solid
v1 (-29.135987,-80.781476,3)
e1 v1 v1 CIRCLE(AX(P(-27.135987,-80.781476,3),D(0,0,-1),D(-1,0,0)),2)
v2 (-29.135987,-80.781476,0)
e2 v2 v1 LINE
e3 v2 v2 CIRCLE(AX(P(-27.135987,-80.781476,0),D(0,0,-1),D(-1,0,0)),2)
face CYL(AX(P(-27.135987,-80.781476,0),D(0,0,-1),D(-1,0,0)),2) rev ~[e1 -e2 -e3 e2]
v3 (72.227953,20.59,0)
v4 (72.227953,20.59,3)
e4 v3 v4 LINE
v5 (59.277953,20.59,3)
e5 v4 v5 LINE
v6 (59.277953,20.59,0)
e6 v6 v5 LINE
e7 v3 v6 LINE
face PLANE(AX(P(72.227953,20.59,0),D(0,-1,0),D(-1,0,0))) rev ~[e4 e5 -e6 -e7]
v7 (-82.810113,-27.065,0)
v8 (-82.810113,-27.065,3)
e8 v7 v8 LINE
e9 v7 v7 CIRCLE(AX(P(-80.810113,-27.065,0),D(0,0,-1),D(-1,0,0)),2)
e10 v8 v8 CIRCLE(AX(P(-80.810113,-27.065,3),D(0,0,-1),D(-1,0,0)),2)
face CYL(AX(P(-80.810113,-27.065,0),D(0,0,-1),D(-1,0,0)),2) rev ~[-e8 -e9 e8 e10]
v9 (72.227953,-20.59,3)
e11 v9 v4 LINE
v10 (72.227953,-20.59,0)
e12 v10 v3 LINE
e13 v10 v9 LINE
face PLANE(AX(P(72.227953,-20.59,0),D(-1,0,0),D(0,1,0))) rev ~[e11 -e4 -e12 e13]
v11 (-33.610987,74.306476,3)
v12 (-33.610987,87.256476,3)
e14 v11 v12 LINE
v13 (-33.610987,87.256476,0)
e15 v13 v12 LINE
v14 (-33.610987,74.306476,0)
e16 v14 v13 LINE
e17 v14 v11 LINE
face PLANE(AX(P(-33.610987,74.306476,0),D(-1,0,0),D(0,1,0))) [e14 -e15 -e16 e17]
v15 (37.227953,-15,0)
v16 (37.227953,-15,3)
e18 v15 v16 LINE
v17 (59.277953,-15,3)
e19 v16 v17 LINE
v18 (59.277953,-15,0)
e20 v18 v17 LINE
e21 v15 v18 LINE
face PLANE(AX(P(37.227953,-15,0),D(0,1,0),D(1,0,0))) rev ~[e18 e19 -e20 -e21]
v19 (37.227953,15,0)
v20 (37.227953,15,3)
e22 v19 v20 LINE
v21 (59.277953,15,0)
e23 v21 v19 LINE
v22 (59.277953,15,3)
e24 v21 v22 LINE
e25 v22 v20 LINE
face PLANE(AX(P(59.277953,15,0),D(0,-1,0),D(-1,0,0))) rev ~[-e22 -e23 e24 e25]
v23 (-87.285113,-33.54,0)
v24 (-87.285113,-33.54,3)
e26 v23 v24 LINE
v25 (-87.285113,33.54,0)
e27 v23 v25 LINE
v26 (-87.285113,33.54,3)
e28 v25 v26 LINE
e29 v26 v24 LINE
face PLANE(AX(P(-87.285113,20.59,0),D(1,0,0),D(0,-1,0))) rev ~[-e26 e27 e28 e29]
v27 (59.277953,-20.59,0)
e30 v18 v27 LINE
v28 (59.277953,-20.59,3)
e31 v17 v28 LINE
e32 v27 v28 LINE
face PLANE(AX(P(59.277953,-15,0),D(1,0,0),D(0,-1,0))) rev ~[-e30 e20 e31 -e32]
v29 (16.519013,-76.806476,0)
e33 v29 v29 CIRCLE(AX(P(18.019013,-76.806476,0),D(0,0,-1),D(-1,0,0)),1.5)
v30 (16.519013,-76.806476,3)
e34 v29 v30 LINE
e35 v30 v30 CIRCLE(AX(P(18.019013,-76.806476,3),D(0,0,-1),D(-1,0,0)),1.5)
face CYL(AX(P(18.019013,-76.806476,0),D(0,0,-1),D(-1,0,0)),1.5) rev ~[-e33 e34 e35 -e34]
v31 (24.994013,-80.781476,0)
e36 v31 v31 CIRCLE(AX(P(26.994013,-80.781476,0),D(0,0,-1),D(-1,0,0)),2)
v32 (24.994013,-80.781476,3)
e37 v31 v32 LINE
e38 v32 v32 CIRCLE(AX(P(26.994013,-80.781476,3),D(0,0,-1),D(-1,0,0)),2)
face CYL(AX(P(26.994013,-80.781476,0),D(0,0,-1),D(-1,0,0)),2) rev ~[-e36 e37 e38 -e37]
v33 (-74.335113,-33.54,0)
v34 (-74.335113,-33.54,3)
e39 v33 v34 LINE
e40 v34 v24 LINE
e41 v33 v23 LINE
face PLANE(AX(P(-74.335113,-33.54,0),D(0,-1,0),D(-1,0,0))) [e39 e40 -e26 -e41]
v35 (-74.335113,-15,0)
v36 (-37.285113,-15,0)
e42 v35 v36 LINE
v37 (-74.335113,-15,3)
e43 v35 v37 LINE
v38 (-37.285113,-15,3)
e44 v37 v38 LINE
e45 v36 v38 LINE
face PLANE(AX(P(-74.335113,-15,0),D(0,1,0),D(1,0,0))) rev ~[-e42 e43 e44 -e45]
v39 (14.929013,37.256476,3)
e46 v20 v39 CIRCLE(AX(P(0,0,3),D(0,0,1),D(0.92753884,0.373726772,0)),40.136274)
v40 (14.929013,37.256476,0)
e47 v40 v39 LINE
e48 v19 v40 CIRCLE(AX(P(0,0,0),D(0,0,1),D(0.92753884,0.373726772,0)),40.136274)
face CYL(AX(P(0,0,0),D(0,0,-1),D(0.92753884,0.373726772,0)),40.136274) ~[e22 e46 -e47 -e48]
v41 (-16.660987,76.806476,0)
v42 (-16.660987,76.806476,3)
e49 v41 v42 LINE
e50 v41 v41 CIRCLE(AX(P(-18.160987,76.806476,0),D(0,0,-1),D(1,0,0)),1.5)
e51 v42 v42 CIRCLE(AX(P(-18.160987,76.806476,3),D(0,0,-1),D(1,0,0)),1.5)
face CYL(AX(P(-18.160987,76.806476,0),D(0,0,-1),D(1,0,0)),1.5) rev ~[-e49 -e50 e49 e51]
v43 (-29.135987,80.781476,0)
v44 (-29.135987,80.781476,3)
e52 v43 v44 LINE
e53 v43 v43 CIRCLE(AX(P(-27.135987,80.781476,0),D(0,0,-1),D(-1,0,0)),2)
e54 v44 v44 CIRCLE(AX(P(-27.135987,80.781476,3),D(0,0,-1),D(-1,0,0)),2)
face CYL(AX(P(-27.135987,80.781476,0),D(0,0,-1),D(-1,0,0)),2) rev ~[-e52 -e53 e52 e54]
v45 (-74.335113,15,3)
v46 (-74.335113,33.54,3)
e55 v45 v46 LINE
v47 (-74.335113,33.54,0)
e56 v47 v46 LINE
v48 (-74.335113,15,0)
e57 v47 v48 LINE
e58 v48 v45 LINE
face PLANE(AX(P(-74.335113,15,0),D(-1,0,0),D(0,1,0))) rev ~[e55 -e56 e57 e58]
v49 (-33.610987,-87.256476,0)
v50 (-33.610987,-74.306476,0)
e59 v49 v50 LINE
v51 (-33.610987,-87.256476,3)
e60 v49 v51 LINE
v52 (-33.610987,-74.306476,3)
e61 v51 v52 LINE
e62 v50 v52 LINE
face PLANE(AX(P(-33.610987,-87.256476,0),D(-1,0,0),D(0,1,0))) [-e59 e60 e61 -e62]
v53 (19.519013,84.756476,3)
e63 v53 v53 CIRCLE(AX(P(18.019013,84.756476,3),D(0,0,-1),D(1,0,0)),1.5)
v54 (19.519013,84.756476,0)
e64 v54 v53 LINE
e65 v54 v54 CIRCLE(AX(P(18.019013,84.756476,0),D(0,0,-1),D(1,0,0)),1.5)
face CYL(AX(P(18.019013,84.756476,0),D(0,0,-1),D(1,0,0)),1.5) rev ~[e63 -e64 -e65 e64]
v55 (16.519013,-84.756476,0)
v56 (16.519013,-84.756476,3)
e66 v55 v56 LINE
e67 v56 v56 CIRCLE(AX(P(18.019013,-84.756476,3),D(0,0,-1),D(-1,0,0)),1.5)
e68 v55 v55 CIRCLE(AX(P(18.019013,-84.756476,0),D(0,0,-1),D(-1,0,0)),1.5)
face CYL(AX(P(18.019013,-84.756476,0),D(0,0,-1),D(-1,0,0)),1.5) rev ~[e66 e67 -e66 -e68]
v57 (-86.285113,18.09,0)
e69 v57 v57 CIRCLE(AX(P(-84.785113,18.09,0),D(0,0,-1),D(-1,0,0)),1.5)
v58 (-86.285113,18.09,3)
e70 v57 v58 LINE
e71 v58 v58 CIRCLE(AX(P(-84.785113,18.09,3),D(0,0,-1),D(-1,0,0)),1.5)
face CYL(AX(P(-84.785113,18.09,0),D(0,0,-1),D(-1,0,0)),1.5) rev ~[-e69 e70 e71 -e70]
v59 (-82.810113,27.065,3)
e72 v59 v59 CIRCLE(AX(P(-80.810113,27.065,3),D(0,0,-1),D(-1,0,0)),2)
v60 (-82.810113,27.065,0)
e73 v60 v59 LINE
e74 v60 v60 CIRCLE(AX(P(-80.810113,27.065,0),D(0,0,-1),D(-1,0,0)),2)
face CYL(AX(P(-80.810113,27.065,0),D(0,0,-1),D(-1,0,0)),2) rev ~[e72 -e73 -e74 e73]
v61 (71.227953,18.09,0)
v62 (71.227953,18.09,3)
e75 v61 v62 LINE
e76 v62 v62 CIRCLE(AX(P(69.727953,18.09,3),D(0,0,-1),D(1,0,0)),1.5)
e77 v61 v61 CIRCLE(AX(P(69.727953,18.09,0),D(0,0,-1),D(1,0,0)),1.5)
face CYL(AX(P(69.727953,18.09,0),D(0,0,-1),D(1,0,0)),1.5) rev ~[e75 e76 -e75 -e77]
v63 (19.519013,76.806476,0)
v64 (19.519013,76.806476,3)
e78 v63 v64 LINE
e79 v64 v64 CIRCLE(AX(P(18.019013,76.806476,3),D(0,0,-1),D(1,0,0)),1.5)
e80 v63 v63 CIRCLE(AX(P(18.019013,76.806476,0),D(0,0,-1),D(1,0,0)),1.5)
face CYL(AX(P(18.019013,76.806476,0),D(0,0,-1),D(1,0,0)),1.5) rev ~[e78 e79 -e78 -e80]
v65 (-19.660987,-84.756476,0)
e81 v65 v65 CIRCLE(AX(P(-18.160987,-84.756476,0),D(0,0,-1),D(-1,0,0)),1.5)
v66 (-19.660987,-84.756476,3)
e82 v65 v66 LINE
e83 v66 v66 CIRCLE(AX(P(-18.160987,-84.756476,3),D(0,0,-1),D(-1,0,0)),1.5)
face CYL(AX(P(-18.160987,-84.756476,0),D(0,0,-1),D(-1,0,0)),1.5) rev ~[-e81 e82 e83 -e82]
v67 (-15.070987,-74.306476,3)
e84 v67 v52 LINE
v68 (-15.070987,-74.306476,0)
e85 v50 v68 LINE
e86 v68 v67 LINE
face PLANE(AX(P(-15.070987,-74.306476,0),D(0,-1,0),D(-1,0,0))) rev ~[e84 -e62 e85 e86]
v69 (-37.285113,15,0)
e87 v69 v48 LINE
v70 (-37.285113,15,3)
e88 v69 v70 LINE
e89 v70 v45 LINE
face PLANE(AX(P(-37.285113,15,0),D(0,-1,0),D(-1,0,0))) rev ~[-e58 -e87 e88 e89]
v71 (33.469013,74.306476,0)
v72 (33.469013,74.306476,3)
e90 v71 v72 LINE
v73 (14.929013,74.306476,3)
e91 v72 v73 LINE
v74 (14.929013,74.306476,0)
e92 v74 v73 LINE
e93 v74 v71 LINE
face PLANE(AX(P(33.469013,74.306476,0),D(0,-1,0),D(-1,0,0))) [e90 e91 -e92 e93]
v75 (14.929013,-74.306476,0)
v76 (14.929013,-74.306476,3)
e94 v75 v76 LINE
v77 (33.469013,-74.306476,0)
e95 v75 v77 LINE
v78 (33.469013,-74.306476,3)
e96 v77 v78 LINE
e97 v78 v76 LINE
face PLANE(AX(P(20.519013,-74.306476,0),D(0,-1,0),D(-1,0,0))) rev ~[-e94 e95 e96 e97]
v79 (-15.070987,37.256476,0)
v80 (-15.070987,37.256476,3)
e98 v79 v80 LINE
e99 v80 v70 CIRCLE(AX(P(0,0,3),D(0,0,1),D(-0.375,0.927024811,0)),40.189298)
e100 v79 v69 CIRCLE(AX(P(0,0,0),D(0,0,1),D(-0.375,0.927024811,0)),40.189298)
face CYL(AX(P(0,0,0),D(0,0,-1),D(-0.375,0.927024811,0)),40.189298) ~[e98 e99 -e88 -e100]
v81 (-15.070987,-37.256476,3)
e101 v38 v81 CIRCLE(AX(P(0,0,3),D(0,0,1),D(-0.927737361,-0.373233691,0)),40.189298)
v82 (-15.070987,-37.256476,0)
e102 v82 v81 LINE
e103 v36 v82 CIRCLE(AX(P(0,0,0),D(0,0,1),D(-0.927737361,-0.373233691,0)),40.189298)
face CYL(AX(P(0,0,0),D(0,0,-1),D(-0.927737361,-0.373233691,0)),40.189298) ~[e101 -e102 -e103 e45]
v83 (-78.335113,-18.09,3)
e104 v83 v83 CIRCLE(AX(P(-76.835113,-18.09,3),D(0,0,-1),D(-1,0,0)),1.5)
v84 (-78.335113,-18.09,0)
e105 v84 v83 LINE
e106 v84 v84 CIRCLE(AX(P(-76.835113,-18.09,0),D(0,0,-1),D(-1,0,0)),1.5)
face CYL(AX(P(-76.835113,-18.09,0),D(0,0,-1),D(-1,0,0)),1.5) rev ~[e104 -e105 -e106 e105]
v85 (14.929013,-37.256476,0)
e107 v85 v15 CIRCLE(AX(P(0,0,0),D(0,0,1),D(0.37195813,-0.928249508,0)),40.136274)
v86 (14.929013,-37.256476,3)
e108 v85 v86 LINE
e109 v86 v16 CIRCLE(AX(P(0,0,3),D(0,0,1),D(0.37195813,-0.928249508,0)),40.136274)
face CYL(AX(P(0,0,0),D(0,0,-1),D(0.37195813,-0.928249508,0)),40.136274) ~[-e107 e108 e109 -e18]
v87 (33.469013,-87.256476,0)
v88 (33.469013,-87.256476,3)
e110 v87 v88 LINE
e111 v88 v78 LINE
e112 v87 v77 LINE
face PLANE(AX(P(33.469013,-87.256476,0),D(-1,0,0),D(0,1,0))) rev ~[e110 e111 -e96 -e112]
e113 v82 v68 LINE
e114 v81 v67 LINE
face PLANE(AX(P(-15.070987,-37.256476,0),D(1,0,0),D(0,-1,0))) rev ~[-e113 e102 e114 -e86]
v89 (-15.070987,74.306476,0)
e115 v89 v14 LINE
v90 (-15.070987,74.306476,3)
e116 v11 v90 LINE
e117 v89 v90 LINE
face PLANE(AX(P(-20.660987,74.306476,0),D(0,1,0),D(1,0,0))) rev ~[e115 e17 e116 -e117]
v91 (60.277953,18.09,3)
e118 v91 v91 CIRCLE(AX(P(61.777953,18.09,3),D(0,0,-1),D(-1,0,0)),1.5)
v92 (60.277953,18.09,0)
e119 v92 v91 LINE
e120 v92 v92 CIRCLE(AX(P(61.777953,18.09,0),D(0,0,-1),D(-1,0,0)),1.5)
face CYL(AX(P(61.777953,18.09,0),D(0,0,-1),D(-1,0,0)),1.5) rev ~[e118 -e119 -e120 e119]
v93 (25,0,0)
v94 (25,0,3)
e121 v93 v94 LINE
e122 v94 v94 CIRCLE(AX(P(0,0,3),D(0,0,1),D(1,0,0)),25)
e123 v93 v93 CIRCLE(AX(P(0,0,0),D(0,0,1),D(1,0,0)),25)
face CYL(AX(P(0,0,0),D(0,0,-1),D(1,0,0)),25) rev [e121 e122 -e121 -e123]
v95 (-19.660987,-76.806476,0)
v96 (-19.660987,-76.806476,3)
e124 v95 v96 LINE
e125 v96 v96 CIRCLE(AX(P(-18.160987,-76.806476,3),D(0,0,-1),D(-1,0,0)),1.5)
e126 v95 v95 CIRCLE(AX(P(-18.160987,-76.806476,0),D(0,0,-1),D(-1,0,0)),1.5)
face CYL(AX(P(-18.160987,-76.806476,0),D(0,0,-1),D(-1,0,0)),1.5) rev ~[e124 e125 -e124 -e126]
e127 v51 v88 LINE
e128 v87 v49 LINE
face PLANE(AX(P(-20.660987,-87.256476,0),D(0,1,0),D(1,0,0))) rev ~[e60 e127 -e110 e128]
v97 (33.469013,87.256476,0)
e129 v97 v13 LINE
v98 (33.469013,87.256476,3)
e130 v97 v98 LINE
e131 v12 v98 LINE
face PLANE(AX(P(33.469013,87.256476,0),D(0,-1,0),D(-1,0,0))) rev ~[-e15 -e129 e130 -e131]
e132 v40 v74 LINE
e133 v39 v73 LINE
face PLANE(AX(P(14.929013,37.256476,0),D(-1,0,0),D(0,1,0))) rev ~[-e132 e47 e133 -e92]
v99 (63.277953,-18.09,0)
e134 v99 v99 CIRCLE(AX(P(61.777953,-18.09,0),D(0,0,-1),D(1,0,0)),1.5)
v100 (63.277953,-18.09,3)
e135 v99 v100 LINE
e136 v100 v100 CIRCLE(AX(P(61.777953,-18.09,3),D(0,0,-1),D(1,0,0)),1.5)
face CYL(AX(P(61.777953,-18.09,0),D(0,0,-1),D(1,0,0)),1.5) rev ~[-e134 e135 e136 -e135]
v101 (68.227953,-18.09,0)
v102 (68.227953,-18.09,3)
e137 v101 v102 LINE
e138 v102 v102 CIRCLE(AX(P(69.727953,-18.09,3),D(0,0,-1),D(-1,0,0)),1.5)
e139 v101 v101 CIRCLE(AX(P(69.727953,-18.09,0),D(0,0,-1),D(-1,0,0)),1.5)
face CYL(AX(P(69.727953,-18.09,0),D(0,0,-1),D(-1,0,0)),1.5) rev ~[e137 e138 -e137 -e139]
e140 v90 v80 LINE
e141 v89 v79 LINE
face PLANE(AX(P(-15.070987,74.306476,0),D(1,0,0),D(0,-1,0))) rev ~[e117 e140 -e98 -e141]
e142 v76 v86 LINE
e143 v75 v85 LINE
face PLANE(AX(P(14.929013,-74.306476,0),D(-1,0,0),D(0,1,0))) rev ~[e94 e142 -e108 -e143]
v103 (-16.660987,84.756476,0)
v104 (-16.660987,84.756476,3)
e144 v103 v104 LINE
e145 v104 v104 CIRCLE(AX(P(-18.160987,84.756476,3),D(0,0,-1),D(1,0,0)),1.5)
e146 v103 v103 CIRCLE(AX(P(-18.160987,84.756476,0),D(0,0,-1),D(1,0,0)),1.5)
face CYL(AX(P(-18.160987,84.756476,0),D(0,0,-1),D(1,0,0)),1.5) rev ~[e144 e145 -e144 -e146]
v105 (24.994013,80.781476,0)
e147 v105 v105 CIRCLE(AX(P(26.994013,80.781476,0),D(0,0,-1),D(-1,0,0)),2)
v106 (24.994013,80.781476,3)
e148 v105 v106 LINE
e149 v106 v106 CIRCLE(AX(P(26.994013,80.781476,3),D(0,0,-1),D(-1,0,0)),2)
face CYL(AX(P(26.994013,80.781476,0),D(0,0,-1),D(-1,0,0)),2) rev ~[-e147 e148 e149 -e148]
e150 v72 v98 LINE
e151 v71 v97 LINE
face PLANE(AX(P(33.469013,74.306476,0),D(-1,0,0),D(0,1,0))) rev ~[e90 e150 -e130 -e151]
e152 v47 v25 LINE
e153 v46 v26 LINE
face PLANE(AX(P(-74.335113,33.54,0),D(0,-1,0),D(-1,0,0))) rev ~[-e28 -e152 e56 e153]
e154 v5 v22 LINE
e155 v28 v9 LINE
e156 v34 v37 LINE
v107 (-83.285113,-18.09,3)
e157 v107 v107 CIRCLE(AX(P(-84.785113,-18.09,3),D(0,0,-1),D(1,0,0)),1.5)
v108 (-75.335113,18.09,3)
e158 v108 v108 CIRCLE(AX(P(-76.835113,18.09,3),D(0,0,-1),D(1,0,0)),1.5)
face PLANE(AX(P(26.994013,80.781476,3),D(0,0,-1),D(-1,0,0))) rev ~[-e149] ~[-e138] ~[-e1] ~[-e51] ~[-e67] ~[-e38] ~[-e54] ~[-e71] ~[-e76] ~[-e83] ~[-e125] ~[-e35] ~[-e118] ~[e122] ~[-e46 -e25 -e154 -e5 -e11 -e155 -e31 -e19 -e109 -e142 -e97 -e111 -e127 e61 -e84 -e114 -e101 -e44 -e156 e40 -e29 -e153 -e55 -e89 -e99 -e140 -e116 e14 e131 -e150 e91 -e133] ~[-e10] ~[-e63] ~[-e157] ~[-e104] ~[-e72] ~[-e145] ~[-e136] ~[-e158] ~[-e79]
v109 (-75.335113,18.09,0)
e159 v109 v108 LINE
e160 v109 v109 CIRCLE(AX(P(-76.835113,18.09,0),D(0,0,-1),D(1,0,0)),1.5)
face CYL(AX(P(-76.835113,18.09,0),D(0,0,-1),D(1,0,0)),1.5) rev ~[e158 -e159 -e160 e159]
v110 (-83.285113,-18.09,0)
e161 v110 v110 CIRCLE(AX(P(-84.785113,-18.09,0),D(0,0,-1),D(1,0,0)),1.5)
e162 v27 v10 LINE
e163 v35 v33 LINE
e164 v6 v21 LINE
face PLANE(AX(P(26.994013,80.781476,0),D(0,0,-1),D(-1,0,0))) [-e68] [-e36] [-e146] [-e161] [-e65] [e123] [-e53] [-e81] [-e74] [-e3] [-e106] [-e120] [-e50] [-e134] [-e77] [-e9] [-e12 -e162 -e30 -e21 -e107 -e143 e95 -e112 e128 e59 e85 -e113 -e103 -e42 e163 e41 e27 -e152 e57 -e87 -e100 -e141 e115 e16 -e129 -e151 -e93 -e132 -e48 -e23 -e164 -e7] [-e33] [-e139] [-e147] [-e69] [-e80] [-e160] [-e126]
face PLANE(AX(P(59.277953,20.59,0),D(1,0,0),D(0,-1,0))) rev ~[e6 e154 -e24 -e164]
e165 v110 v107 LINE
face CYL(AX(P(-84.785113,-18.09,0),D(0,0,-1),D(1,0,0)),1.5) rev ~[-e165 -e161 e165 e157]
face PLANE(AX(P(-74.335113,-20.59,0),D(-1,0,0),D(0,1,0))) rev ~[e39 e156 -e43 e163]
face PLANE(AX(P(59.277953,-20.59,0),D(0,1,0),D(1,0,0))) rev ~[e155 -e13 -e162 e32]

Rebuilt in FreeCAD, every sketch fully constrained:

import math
import FreeCAD as App
import Part
import Sketcher

V = App.Vector

doc = App.newDocument("Part")
body = doc.addObject("PartDesign::Body", "Body")

sketch1 = doc.addObject("Sketcher::SketchObject", "Sketch")
body.addObject(sketch1)
sketch1.AttachmentSupport = (doc.XY_Plane, [""])
sketch1.MapMode = "FlatFace"
sketch1.addGeometry(Part.LineSegment(V(-15, 74, 0), V(-15, 37, 0)), False)
sketch1.addGeometry(Part.ArcOfCircle(Part.Circle(V(0, 0, 0), V(0, 0, 1), 40), math.radians(112), math.radians(158)), False)
sketch1.addGeometry(Part.LineSegment(V(-37, 15, 0), V(-74, 15, 0)), False)
sketch1.addGeometry(Part.LineSegment(V(-74, 15, 0), V(-74, 21, 0)), False)
sketch1.addGeometry(Part.LineSegment(V(-74, 21, 0), V(-87, 21, 0)), False)
sketch1.addGeometry(Part.LineSegment(V(-87, 21, 0), V(-87, -21, 0)), False)
sketch1.addGeometry(Part.LineSegment(V(-87, -21, 0), V(-74, -21, 0)), False)
sketch1.addGeometry(Part.LineSegment(V(-74, -21, 0), V(-74, -15, 0)), False)
sketch1.addGeometry(Part.LineSegment(V(-74, -15, 0), V(-37, -15, 0)), False)
sketch1.addGeometry(Part.ArcOfCircle(Part.Circle(V(0, 0, 0), V(0, 0, 1), 40), math.radians(-158), math.radians(-112)), False)
sketch1.addGeometry(Part.LineSegment(V(-15, -37, 0), V(-15, -74, 0)), False)
sketch1.addGeometry(Part.LineSegment(V(-15, -74, 0), V(-21, -74, 0)), False)
sketch1.addGeometry(Part.LineSegment(V(-21, -74, 0), V(-21, -87, 0)), False)
sketch1.addGeometry(Part.LineSegment(V(-21, -87, 0), V(21, -87, 0)), False)
sketch1.addGeometry(Part.LineSegment(V(21, -87, 0), V(21, -74, 0)), False)
sketch1.addGeometry(Part.LineSegment(V(21, -74, 0), V(15, -74, 0)), False)
sketch1.addGeometry(Part.LineSegment(V(15, -74, 0), V(15, -37, 0)), False)
sketch1.addGeometry(Part.ArcOfCircle(Part.Circle(V(0, 0, 0), V(0, 0, 1), 40), math.radians(-68), math.radians(-22)), False)
sketch1.addGeometry(Part.LineSegment(V(37, -15, 0), V(59, -15, 0)), False)
sketch1.addGeometry(Part.LineSegment(V(59, -15, 0), V(59, -21, 0)), False)
sketch1.addGeometry(Part.LineSegment(V(59, -21, 0), V(72, -21, 0)), False)
sketch1.addGeometry(Part.LineSegment(V(72, -21, 0), V(72, 21, 0)), False)
sketch1.addGeometry(Part.LineSegment(V(72, 21, 0), V(59, 21, 0)), False)
sketch1.addGeometry(Part.LineSegment(V(59, 21, 0), V(59, 15, 0)), False)
sketch1.addGeometry(Part.LineSegment(V(59, 15, 0), V(37, 15, 0)), False)
sketch1.addGeometry(Part.ArcOfCircle(Part.Circle(V(0, 0, 0), V(0, 0, 1), 40), math.radians(22), math.radians(68)), False)
sketch1.addGeometry(Part.LineSegment(V(15, 37, 0), V(15, 74, 0)), False)
sketch1.addGeometry(Part.LineSegment(V(15, 74, 0), V(21, 74, 0)), False)
sketch1.addGeometry(Part.LineSegment(V(21, 74, 0), V(21, 87, 0)), False)
sketch1.addGeometry(Part.LineSegment(V(21, 87, 0), V(-21, 87, 0)), False)
sketch1.addGeometry(Part.LineSegment(V(-21, 87, 0), V(-21, 74, 0)), False)
sketch1.addGeometry(Part.LineSegment(V(-21, 74, 0), V(-15, 74, 0)), False)
sketch1.addGeometry(Part.Circle(V(0, 0, 0), V(0, 0, 1), 25), False)
sketch1.addConstraint(Sketcher.Constraint("Coincident", 0, 2, 1, 1))
sketch1.addConstraint(Sketcher.Constraint("Coincident", 1, 2, 2, 1))
sketch1.addConstraint(Sketcher.Constraint("Coincident", 2, 2, 3, 1))
sketch1.addConstraint(Sketcher.Constraint("Coincident", 3, 2, 4, 1))
sketch1.addConstraint(Sketcher.Constraint("Coincident", 4, 2, 5, 1))
sketch1.addConstraint(Sketcher.Constraint("Coincident", 5, 2, 6, 1))
sketch1.addConstraint(Sketcher.Constraint("Coincident", 6, 2, 7, 1))
sketch1.addConstraint(Sketcher.Constraint("Coincident", 7, 2, 8, 1))
sketch1.addConstraint(Sketcher.Constraint("Coincident", 8, 2, 9, 1))
sketch1.addConstraint(Sketcher.Constraint("Coincident", 9, 2, 10, 1))
sketch1.addConstraint(Sketcher.Constraint("Coincident", 10, 2, 11, 1))
sketch1.addConstraint(Sketcher.Constraint("Coincident", 11, 2, 12, 1))
sketch1.addConstraint(Sketcher.Constraint("Coincident", 12, 2, 13, 1))
sketch1.addConstraint(Sketcher.Constraint("Coincident", 13, 2, 14, 1))
sketch1.addConstraint(Sketcher.Constraint("Coincident", 14, 2, 15, 1))
sketch1.addConstraint(Sketcher.Constraint("Coincident", 15, 2, 16, 1))
sketch1.addConstraint(Sketcher.Constraint("Coincident", 16, 2, 17, 1))
sketch1.addConstraint(Sketcher.Constraint("Coincident", 17, 2, 18, 1))
sketch1.addConstraint(Sketcher.Constraint("Coincident", 18, 2, 19, 1))
sketch1.addConstraint(Sketcher.Constraint("Coincident", 19, 2, 20, 1))
sketch1.addConstraint(Sketcher.Constraint("Coincident", 20, 2, 21, 1))
sketch1.addConstraint(Sketcher.Constraint("Coincident", 21, 2, 22, 1))
sketch1.addConstraint(Sketcher.Constraint("Coincident", 22, 2, 23, 1))
sketch1.addConstraint(Sketcher.Constraint("Coincident", 23, 2, 24, 1))
sketch1.addConstraint(Sketcher.Constraint("Coincident", 24, 2, 25, 1))
sketch1.addConstraint(Sketcher.Constraint("Coincident", 25, 2, 26, 1))
sketch1.addConstraint(Sketcher.Constraint("Coincident", 26, 2, 27, 1))
sketch1.addConstraint(Sketcher.Constraint("Coincident", 27, 2, 28, 1))
sketch1.addConstraint(Sketcher.Constraint("Coincident", 28, 2, 29, 1))
sketch1.addConstraint(Sketcher.Constraint("Coincident", 29, 2, 30, 1))
sketch1.addConstraint(Sketcher.Constraint("Coincident", 30, 2, 31, 1))
sketch1.addConstraint(Sketcher.Constraint("Coincident", 31, 2, 0, 1))
sketch1.addConstraint(Sketcher.Constraint("Vertical", 0))
sketch1.addConstraint(Sketcher.Constraint("Horizontal", 2))
sketch1.addConstraint(Sketcher.Constraint("Vertical", 3))
sketch1.addConstraint(Sketcher.Constraint("Horizontal", 4))
sketch1.addConstraint(Sketcher.Constraint("Vertical", 5))
sketch1.addConstraint(Sketcher.Constraint("Horizontal", 6))
sketch1.addConstraint(Sketcher.Constraint("Vertical", 7))
sketch1.addConstraint(Sketcher.Constraint("Horizontal", 8))
sketch1.addConstraint(Sketcher.Constraint("Vertical", 10))
sketch1.addConstraint(Sketcher.Constraint("Horizontal", 11))
sketch1.addConstraint(Sketcher.Constraint("Vertical", 12))
sketch1.addConstraint(Sketcher.Constraint("Horizontal", 13))
sketch1.addConstraint(Sketcher.Constraint("Vertical", 14))
sketch1.addConstraint(Sketcher.Constraint("Horizontal", 15))
sketch1.addConstraint(Sketcher.Constraint("Vertical", 16))
sketch1.addConstraint(Sketcher.Constraint("Horizontal", 18))
sketch1.addConstraint(Sketcher.Constraint("Vertical", 19))
sketch1.addConstraint(Sketcher.Constraint("Horizontal", 20))
sketch1.addConstraint(Sketcher.Constraint("Vertical", 21))
sketch1.addConstraint(Sketcher.Constraint("Horizontal", 22))
sketch1.addConstraint(Sketcher.Constraint("Vertical", 23))
sketch1.addConstraint(Sketcher.Constraint("Horizontal", 24))
sketch1.addConstraint(Sketcher.Constraint("Vertical", 26))
sketch1.addConstraint(Sketcher.Constraint("Horizontal", 27))
sketch1.addConstraint(Sketcher.Constraint("Vertical", 28))
sketch1.addConstraint(Sketcher.Constraint("Horizontal", 29))
sketch1.addConstraint(Sketcher.Constraint("Vertical", 30))
sketch1.addConstraint(Sketcher.Constraint("Horizontal", 31))
sketch1.addConstraint(Sketcher.Constraint("Coincident", 1, 3, -1, 1))
sketch1.addConstraint(Sketcher.Constraint("Coincident", 9, 3, -1, 1))
sketch1.addConstraint(Sketcher.Constraint("Coincident", 17, 3, -1, 1))
sketch1.addConstraint(Sketcher.Constraint("Coincident", 25, 3, -1, 1))
sketch1.addConstraint(Sketcher.Constraint("Coincident", 32, 3, -1, 1))
sketch1.addConstraint(Sketcher.Constraint("Equal", 1, 9))
sketch1.addConstraint(Sketcher.Constraint("Equal", 17, 25))
sketch1.addConstraint(Sketcher.Constraint("Symmetric", 3, 2, 6, 2, -1))
sketch1.addConstraint(Sketcher.Constraint("Symmetric", 19, 2, 22, 2, -1))
sketch1.addConstraint(Sketcher.Constraint("Symmetric", 15, 2, 26, 2, -1))
sketch1.addConstraint(Sketcher.Constraint("Symmetric", 13, 2, 28, 2, -1))
sketch1.addConstraint(Sketcher.Constraint("Symmetric", 11, 2, 30, 2, -1))
sketch1.addConstraint(Sketcher.Constraint("Horizontal", 11, 2, 14, 2))
sketch1.addConstraint(Sketcher.Constraint("Horizontal", 9, 2, 16, 2))
sketch1.addConstraint(Sketcher.Constraint("Horizontal", 8, 2, 17, 2))
sketch1.addConstraint(Sketcher.Constraint("Horizontal", 6, 2, 19, 2))
sketch1.addConstraint(Sketcher.Constraint("Horizontal", 2, 2, 23, 2))
sketch1.addConstraint(Sketcher.Constraint("Horizontal", 0, 2, 25, 2))
sketch1.addConstraint(Sketcher.Constraint("Vertical", 1, 2, 8, 2))
sketch1.addConstraint(Sketcher.Constraint("Equal", 11, 15))
sketch1.addConstraint(Sketcher.Constraint("Equal", 6, 20))
sketch1.addConstraint(Sketcher.Constraint("Equal", 8, 0))
sketch1.addConstraint(Sketcher.Constraint("Equal", 31, 3))
sketch1.addConstraint(Sketcher.Constraint("Equal", 29, 5))
sketch1.addConstraint(Sketcher.Constraint("Equal", 22, 12))
sketch1.addConstraint(Sketcher.Constraint("Diameter", 32, 50.0))
sketch1.addConstraint(Sketcher.Constraint("DistanceY", -1, 1, 1, 2, 15.0))
sketch1.addConstraint(Sketcher.Constraint("DistanceX", 4, 2, 1, 2, 50.0))
sketch1.addConstraint(Sketcher.Constraint("DistanceX", 17, 2, 20, 2, 35.0))
sketch1.addConstraint(Sketcher.Constraint("DistanceX", 2, 2, 2, 1, 37.05))
sketch1.addConstraint(Sketcher.Constraint("DistanceX", 11, 2, 11, 1, 5.59))
sketch1.addConstraint(Sketcher.Constraint("Radius", 1, 40.189298))
sketch1.addConstraint(Sketcher.Constraint("Radius", 17, 40.136274))
pad1 = doc.addObject("PartDesign::Pad", "Pad")
body.addObject(pad1)
pad1.Profile = sketch1
pad1.Length = 3

sketch2 = doc.addObject("Sketcher::SketchObject", "Sketch001")
body.addObject(sketch2)
sketch2.AttachmentSupport = (doc.XY_Plane, [""])
sketch2.MapMode = "FlatFace"
sketch2.addGeometry(Part.LineSegment(V(33, 87, 0), V(33, 74, 0)), False)
sketch2.addGeometry(Part.LineSegment(V(33, 74, 0), V(21, 74, 0)), False)
sketch2.addGeometry(Part.LineSegment(V(21, 74, 0), V(21, 87, 0)), False)
sketch2.addGeometry(Part.LineSegment(V(21, 87, 0), V(33, 87, 0)), False)
sketch2.addGeometry(Part.LineSegment(V(-21, 87, 0), V(-21, 74, 0)), False)
sketch2.addGeometry(Part.LineSegment(V(-21, 74, 0), V(-34, 74, 0)), False)
sketch2.addGeometry(Part.LineSegment(V(-34, 74, 0), V(-34, 87, 0)), False)
sketch2.addGeometry(Part.LineSegment(V(-34, 87, 0), V(-21, 87, 0)), False)
sketch2.addGeometry(Part.LineSegment(V(33, -74, 0), V(33, -87, 0)), False)
sketch2.addGeometry(Part.LineSegment(V(33, -87, 0), V(21, -87, 0)), False)
sketch2.addGeometry(Part.LineSegment(V(21, -87, 0), V(21, -74, 0)), False)
sketch2.addGeometry(Part.LineSegment(V(21, -74, 0), V(33, -74, 0)), False)
sketch2.addGeometry(Part.LineSegment(V(-21, -74, 0), V(-21, -87, 0)), False)
sketch2.addGeometry(Part.LineSegment(V(-21, -87, 0), V(-34, -87, 0)), False)
sketch2.addGeometry(Part.LineSegment(V(-34, -87, 0), V(-34, -74, 0)), False)
sketch2.addGeometry(Part.LineSegment(V(-34, -74, 0), V(-21, -74, 0)), False)
sketch2.addGeometry(Part.LineSegment(V(-74, 34, 0), V(-74, 21, 0)), False)
sketch2.addGeometry(Part.LineSegment(V(-74, 21, 0), V(-87, 21, 0)), False)
sketch2.addGeometry(Part.LineSegment(V(-87, 21, 0), V(-87, 34, 0)), False)
sketch2.addGeometry(Part.LineSegment(V(-87, 34, 0), V(-74, 34, 0)), False)
sketch2.addGeometry(Part.LineSegment(V(-74, -21, 0), V(-74, -34, 0)), False)
sketch2.addGeometry(Part.LineSegment(V(-74, -34, 0), V(-87, -34, 0)), False)
sketch2.addGeometry(Part.LineSegment(V(-87, -34, 0), V(-87, -21, 0)), False)
sketch2.addGeometry(Part.LineSegment(V(-87, -21, 0), V(-74, -21, 0)), False)
sketch2.addConstraint(Sketcher.Constraint("Coincident", 0, 2, 1, 1))
sketch2.addConstraint(Sketcher.Constraint("Coincident", 1, 2, 2, 1))
sketch2.addConstraint(Sketcher.Constraint("Coincident", 2, 2, 3, 1))
sketch2.addConstraint(Sketcher.Constraint("Coincident", 3, 2, 0, 1))
sketch2.addConstraint(Sketcher.Constraint("Coincident", 4, 2, 5, 1))
sketch2.addConstraint(Sketcher.Constraint("Coincident", 5, 2, 6, 1))
sketch2.addConstraint(Sketcher.Constraint("Coincident", 6, 2, 7, 1))
sketch2.addConstraint(Sketcher.Constraint("Coincident", 7, 2, 4, 1))
sketch2.addConstraint(Sketcher.Constraint("Coincident", 8, 2, 9, 1))
sketch2.addConstraint(Sketcher.Constraint("Coincident", 9, 2, 10, 1))
sketch2.addConstraint(Sketcher.Constraint("Coincident", 10, 2, 11, 1))
sketch2.addConstraint(Sketcher.Constraint("Coincident", 11, 2, 8, 1))
sketch2.addConstraint(Sketcher.Constraint("Coincident", 12, 2, 13, 1))
sketch2.addConstraint(Sketcher.Constraint("Coincident", 13, 2, 14, 1))
sketch2.addConstraint(Sketcher.Constraint("Coincident", 14, 2, 15, 1))
sketch2.addConstraint(Sketcher.Constraint("Coincident", 15, 2, 12, 1))
sketch2.addConstraint(Sketcher.Constraint("Coincident", 16, 2, 17, 1))
sketch2.addConstraint(Sketcher.Constraint("Coincident", 17, 2, 18, 1))
sketch2.addConstraint(Sketcher.Constraint("Coincident", 18, 2, 19, 1))
sketch2.addConstraint(Sketcher.Constraint("Coincident", 19, 2, 16, 1))
sketch2.addConstraint(Sketcher.Constraint("Coincident", 20, 2, 21, 1))
sketch2.addConstraint(Sketcher.Constraint("Coincident", 21, 2, 22, 1))
sketch2.addConstraint(Sketcher.Constraint("Coincident", 22, 2, 23, 1))
sketch2.addConstraint(Sketcher.Constraint("Coincident", 23, 2, 20, 1))
sketch2.addConstraint(Sketcher.Constraint("Vertical", 0))
sketch2.addConstraint(Sketcher.Constraint("Horizontal", 1))
sketch2.addConstraint(Sketcher.Constraint("Vertical", 2))
sketch2.addConstraint(Sketcher.Constraint("Horizontal", 3))
sketch2.addConstraint(Sketcher.Constraint("Vertical", 4))
sketch2.addConstraint(Sketcher.Constraint("Horizontal", 5))
sketch2.addConstraint(Sketcher.Constraint("Vertical", 6))
sketch2.addConstraint(Sketcher.Constraint("Horizontal", 7))
sketch2.addConstraint(Sketcher.Constraint("Vertical", 8))
sketch2.addConstraint(Sketcher.Constraint("Horizontal", 9))
sketch2.addConstraint(Sketcher.Constraint("Vertical", 10))
sketch2.addConstraint(Sketcher.Constraint("Horizontal", 11))
sketch2.addConstraint(Sketcher.Constraint("Vertical", 12))
sketch2.addConstraint(Sketcher.Constraint("Horizontal", 13))
sketch2.addConstraint(Sketcher.Constraint("Vertical", 14))
sketch2.addConstraint(Sketcher.Constraint("Horizontal", 15))
sketch2.addConstraint(Sketcher.Constraint("Vertical", 16))
sketch2.addConstraint(Sketcher.Constraint("Horizontal", 17))
sketch2.addConstraint(Sketcher.Constraint("Vertical", 18))
sketch2.addConstraint(Sketcher.Constraint("Horizontal", 19))
sketch2.addConstraint(Sketcher.Constraint("Vertical", 20))
sketch2.addConstraint(Sketcher.Constraint("Horizontal", 21))
sketch2.addConstraint(Sketcher.Constraint("Vertical", 22))
sketch2.addConstraint(Sketcher.Constraint("Horizontal", 23))
sketch2.addConstraint(Sketcher.Constraint("Symmetric", 3, 2, 8, 2, -1))
sketch2.addConstraint(Sketcher.Constraint("Symmetric", 1, 2, 10, 2, -1))
sketch2.addConstraint(Sketcher.Constraint("Symmetric", 7, 2, 12, 2, -1))
sketch2.addConstraint(Sketcher.Constraint("Symmetric", 5, 2, 14, 2, -1))
sketch2.addConstraint(Sketcher.Constraint("Symmetric", 19, 2, 20, 2, -1))
sketch2.addConstraint(Sketcher.Constraint("Symmetric", 17, 2, 22, 2, -1))
sketch2.addConstraint(Sketcher.Constraint("Horizontal", 1, 2, 4, 2))
sketch2.addConstraint(Sketcher.Constraint("Horizontal", 3, 2, 6, 2))
sketch2.addConstraint(Sketcher.Constraint("Equal", 3, 5))
sketch2.addConstraint(Sketcher.Constraint("Equal", 15, 17))
sketch2.addConstraint(Sketcher.Constraint("Equal", 23, 0))
sketch2.addConstraint(Sketcher.Constraint("Equal", 14, 16))
sketch2.addConstraint(Sketcher.Constraint("DistanceX", 1, 2, 1, 1, 12.95))
sketch2.addConstraint(Sketcher.Constraint("DistanceY", -1, 1, 16, 2, 20.59))
sketch2.addConstraint(Sketcher.Constraint("DistanceX", 4, 2, 1, 2, 41.18))
sketch2.addConstraint(Sketcher.Constraint("DistanceX", -1, 1, 0, 2, 33.469013))
sketch2.addConstraint(Sketcher.Constraint("DistanceY", -1, 1, 0, 2, 74.306476))
sketch2.addConstraint(Sketcher.Constraint("DistanceX", 16, 2, -1, 1, 74.335113))
pad2 = doc.addObject("PartDesign::Pad", "Pad001")
body.addObject(pad2)
pad2.Profile = sketch2
pad2.Length = 3

sketch3 = doc.addObject("Sketcher::SketchObject", "Sketch002")
body.addObject(sketch3)
sketch3.AttachmentSupport = (doc.XY_Plane, [""])
sketch3.MapMode = "FlatFace"
sketch3.addGeometry(Part.Circle(V(27, 80.8, 0), V(0, 0, 1), 2), False)
sketch3.addGeometry(Part.Circle(V(-27.1, 80.8, 0), V(0, 0, 1), 2), False)
sketch3.addGeometry(Part.Circle(V(-27.1, -80.8, 0), V(0, 0, 1), 2), False)
sketch3.addGeometry(Part.Circle(V(27, -80.8, 0), V(0, 0, 1), 2), False)
sketch3.addGeometry(Part.Circle(V(-80.8, -27.1, 0), V(0, 0, 1), 2), False)
sketch3.addGeometry(Part.Circle(V(-80.8, 27.1, 0), V(0, 0, 1), 2), False)
sketch3.addConstraint(Sketcher.Constraint("Equal", 0, 1))
sketch3.addConstraint(Sketcher.Constraint("Equal", 1, 2))
sketch3.addConstraint(Sketcher.Constraint("Equal", 2, 3))
sketch3.addConstraint(Sketcher.Constraint("Equal", 3, 4))
sketch3.addConstraint(Sketcher.Constraint("Equal", 4, 5))
sketch3.addConstraint(Sketcher.Constraint("Symmetric", 1, 3, 2, 3, -1))
sketch3.addConstraint(Sketcher.Constraint("Symmetric", 0, 3, 3, 3, -1))
sketch3.addConstraint(Sketcher.Constraint("Symmetric", 4, 3, 5, 3, -1))
sketch3.addConstraint(Sketcher.Constraint("Horizontal", 0, 3, 1, 3))
sketch3.addConstraint(Sketcher.Constraint("Diameter", 0, 4.0))
sketch3.addConstraint(Sketcher.Constraint("DistanceX", 1, 3, 0, 3, 54.13))
sketch3.addConstraint(Sketcher.Constraint("DistanceY", 4, 3, 5, 3, 54.13))
sketch3.addConstraint(Sketcher.Constraint("DistanceX", -1, 1, 0, 3, 26.994013))
sketch3.addConstraint(Sketcher.Constraint("DistanceY", -1, 1, 0, 3, 80.781476))
sketch3.addConstraint(Sketcher.Constraint("DistanceX", 4, 3, -1, 1, 80.810113))
pocket1 = doc.addObject("PartDesign::Pocket", "Pocket")
body.addObject(pocket1)
pocket1.Profile = sketch3
pocket1.Type = "ThroughAll"
pocket1.Reversed = True

sketch4 = doc.addObject("Sketcher::SketchObject", "Sketch003")
body.addObject(sketch4)
sketch4.AttachmentSupport = (doc.XY_Plane, [""])
sketch4.MapMode = "FlatFace"
sketch4.addGeometry(Part.Circle(V(18, -84.8, 0), V(0, 0, 1), 1.5), False)
sketch4.addGeometry(Part.Circle(V(18, -76.8, 0), V(0, 0, 1), 1.5), False)
sketch4.addGeometry(Part.Circle(V(-18.2, -76.8, 0), V(0, 0, 1), 1.5), False)
sketch4.addGeometry(Part.Circle(V(-18.2, -84.8, 0), V(0, 0, 1), 1.5), False)
sketch4.addGeometry(Part.Circle(V(-18.2, 76.8, 0), V(0, 0, 1), 1.5), False)
sketch4.addGeometry(Part.Circle(V(-18.2, 84.8, 0), V(0, 0, 1), 1.5), False)
sketch4.addGeometry(Part.Circle(V(18, 84.8, 0), V(0, 0, 1), 1.5), False)
sketch4.addGeometry(Part.Circle(V(18, 76.8, 0), V(0, 0, 1), 1.5), False)
sketch4.addGeometry(Part.Circle(V(-76.8, -18.1, 0), V(0, 0, 1), 1.5), False)
sketch4.addGeometry(Part.Circle(V(-84.8, -18.1, 0), V(0, 0, 1), 1.5), False)
sketch4.addGeometry(Part.Circle(V(-76.8, 18.1, 0), V(0, 0, 1), 1.5), False)
sketch4.addGeometry(Part.Circle(V(-84.8, 18.1, 0), V(0, 0, 1), 1.5), False)
sketch4.addGeometry(Part.Circle(V(69.7, -18.1, 0), V(0, 0, 1), 1.5), False)
sketch4.addGeometry(Part.Circle(V(61.8, -18.1, 0), V(0, 0, 1), 1.5), False)
sketch4.addGeometry(Part.Circle(V(69.7, 18.1, 0), V(0, 0, 1), 1.5), False)
sketch4.addGeometry(Part.Circle(V(61.8, 18.1, 0), V(0, 0, 1), 1.5), False)
sketch4.addConstraint(Sketcher.Constraint("Equal", 0, 1))
sketch4.addConstraint(Sketcher.Constraint("Equal", 1, 2))
sketch4.addConstraint(Sketcher.Constraint("Equal", 2, 3))
sketch4.addConstraint(Sketcher.Constraint("Equal", 3, 4))
sketch4.addConstraint(Sketcher.Constraint("Equal", 4, 5))
sketch4.addConstraint(Sketcher.Constraint("Equal", 5, 6))
sketch4.addConstraint(Sketcher.Constraint("Equal", 6, 7))
sketch4.addConstraint(Sketcher.Constraint("Equal", 7, 8))
sketch4.addConstraint(Sketcher.Constraint("Equal", 8, 9))
sketch4.addConstraint(Sketcher.Constraint("Equal", 9, 10))
sketch4.addConstraint(Sketcher.Constraint("Equal", 10, 11))
sketch4.addConstraint(Sketcher.Constraint("Equal", 11, 12))
sketch4.addConstraint(Sketcher.Constraint("Equal", 12, 13))
sketch4.addConstraint(Sketcher.Constraint("Equal", 13, 14))
sketch4.addConstraint(Sketcher.Constraint("Equal", 14, 15))
sketch4.addConstraint(Sketcher.Constraint("Symmetric", 2, 3, 4, 3, -1))
sketch4.addConstraint(Sketcher.Constraint("Symmetric", 3, 3, 5, 3, -1))
sketch4.addConstraint(Sketcher.Constraint("Symmetric", 0, 3, 6, 3, -1))
sketch4.addConstraint(Sketcher.Constraint("Symmetric", 1, 3, 7, 3, -1))
sketch4.addConstraint(Sketcher.Constraint("Symmetric", 8, 3, 10, 3, -1))
sketch4.addConstraint(Sketcher.Constraint("Symmetric", 9, 3, 11, 3, -1))
sketch4.addConstraint(Sketcher.Constraint("Symmetric", 12, 3, 14, 3, -1))
sketch4.addConstraint(Sketcher.Constraint("Symmetric", 13, 3, 15, 3, -1))
sketch4.addConstraint(Sketcher.Constraint("Horizontal", 1, 3, 2, 3))
sketch4.addConstraint(Sketcher.Constraint("Horizontal", 0, 3, 3, 3))
sketch4.addConstraint(Sketcher.Constraint("Horizontal", 8, 3, 9, 3))
sketch4.addConstraint(Sketcher.Constraint("Horizontal", 9, 3, 12, 3))
sketch4.addConstraint(Sketcher.Constraint("Horizontal", 12, 3, 13, 3))
sketch4.addConstraint(Sketcher.Constraint("Vertical", 0, 3, 1, 3))
sketch4.addConstraint(Sketcher.Constraint("Vertical", 2, 3, 3, 3))
sketch4.addConstraint(Sketcher.Constraint("Diameter", 0, 3.0))
sketch4.addConstraint(Sketcher.Constraint("DistanceY", 8, 3, -1, 1, 18.09))
sketch4.addConstraint(Sketcher.Constraint("DistanceY", 0, 3, 1, 3, 7.95))
sketch4.addConstraint(Sketcher.Constraint("DistanceX", 2, 3, 1, 3, 36.18))
sketch4.addConstraint(Sketcher.Constraint("DistanceX", 9, 3, 8, 3, 7.95))
sketch4.addConstraint(Sketcher.Constraint("DistanceX", 13, 3, 12, 3, 7.95))
sketch4.addConstraint(Sketcher.Constraint("DistanceX", 1, 3, 12, 3, 51.708939))
sketch4.addConstraint(Sketcher.Constraint("DistanceX", -1, 1, 0, 3, 18.019013))
sketch4.addConstraint(Sketcher.Constraint("DistanceY", 0, 3, -1, 1, 84.756476))
sketch4.addConstraint(Sketcher.Constraint("DistanceX", 8, 3, -1, 1, 76.835113))
pocket2 = doc.addObject("PartDesign::Pocket", "Pocket001")
body.addObject(pocket2)
pocket2.Profile = sketch4
pocket2.Type = "ThroughAll"
pocket2.Reversed = True

doc.recompute()
